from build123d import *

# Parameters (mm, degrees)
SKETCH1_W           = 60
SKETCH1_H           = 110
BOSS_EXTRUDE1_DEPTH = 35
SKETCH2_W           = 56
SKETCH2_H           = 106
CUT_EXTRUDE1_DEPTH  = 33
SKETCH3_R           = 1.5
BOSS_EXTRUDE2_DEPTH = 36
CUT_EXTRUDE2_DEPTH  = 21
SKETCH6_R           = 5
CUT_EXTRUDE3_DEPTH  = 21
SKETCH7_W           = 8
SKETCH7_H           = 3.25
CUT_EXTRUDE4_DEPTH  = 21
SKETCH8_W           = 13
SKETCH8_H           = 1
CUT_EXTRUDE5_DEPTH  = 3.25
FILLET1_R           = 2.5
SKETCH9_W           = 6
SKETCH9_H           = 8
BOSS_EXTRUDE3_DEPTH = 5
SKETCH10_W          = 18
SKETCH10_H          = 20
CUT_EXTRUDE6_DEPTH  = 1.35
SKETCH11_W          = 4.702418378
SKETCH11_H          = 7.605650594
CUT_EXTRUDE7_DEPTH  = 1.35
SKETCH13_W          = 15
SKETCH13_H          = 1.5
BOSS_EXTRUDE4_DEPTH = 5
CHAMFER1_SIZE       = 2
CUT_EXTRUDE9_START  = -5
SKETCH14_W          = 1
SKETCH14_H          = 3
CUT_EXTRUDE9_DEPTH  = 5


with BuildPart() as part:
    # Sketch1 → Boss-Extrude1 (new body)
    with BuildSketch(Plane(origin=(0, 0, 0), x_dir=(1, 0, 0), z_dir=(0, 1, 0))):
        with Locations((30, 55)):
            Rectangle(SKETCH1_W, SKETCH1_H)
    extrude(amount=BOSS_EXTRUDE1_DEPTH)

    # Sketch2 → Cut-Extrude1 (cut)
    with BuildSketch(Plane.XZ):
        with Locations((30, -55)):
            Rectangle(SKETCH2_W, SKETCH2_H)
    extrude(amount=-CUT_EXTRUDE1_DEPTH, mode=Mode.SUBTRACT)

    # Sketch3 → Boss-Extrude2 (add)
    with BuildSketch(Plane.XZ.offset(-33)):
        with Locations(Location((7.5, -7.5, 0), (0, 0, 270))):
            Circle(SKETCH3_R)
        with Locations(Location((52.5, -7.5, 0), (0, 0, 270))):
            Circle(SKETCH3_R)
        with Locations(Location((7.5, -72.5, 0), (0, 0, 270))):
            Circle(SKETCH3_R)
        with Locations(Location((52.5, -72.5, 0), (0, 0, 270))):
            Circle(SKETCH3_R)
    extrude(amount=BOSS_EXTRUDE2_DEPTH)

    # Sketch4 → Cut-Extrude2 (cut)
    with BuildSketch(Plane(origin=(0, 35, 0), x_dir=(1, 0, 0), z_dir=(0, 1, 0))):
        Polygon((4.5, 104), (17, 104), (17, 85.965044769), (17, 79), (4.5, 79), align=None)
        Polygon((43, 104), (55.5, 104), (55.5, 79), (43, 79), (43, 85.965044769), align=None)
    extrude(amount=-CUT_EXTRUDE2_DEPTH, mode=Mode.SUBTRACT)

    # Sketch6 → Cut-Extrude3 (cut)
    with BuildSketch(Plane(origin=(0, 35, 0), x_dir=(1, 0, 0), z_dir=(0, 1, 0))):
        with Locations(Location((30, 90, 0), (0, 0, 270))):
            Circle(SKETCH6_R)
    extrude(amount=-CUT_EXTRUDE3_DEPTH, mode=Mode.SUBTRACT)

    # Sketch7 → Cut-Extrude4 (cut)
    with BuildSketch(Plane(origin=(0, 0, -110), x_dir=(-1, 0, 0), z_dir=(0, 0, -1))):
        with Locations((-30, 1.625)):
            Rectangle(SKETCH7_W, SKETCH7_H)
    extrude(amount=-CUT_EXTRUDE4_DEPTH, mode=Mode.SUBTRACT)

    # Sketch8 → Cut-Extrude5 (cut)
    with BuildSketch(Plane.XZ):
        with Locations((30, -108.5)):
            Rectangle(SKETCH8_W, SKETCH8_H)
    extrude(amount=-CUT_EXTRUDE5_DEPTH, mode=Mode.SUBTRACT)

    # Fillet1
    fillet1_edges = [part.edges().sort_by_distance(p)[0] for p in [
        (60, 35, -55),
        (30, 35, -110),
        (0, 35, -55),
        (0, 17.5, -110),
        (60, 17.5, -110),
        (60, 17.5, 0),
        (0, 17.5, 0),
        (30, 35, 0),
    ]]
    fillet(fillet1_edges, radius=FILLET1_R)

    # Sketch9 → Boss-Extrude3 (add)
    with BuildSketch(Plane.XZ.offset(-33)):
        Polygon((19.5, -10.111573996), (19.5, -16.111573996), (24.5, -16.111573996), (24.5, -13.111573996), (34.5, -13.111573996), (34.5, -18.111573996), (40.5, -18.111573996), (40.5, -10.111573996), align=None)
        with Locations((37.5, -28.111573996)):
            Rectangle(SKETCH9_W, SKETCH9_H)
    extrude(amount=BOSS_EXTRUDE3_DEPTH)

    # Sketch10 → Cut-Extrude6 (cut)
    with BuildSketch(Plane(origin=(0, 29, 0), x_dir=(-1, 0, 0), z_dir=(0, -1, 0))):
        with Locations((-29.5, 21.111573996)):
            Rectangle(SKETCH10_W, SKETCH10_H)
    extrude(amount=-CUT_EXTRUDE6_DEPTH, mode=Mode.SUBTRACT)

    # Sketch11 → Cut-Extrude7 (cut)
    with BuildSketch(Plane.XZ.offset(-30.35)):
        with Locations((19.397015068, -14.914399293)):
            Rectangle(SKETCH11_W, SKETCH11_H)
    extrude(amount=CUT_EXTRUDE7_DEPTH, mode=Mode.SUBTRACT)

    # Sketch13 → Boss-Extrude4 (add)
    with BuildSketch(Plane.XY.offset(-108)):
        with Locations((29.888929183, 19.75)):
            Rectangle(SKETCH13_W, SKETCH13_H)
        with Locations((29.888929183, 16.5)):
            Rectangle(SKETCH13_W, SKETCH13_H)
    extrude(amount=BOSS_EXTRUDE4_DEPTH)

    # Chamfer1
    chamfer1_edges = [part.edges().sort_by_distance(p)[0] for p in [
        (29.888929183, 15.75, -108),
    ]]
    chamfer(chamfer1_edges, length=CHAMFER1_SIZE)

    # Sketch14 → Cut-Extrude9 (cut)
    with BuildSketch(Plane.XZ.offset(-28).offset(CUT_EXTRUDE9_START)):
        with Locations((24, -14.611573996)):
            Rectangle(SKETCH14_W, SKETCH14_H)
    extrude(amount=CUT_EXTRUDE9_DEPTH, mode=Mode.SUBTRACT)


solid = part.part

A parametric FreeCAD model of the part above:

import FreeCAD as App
import Part
import Sketcher


def edges_at(feature, points):
    """Names of the edges that pass closest to the given points."""
    edges = feature.Shape.Edges
    near = lambda p: min(range(len(edges)), key=lambda i: edges[i].distToShape(Part.Vertex(*p))[0])
    return sorted({f"Edge{near(p) + 1}" for p in points})


def add_polygon(sketch, points):
    """Adds a closed chain of lines whose ends are joined by coincident constraints."""
    first, n = sketch.GeometryCount, len(points)
    for a, b in zip(points, points[1:] + points[:1]):
        sketch.addGeometry(Part.LineSegment(App.Vector(*a, 0), App.Vector(*b, 0)), False)
    for i in range(n):
        sketch.addConstraint(Sketcher.Constraint("Coincident", first + i, 2, first + (i + 1) % n, 1))

doc = App.newDocument("Part")
params = doc.addObject("Spreadsheet::Sheet", "Params")
for row, (alias, value) in enumerate([
    ("sketch1_width", "60 mm"),
    ("sketch1_height", "110 mm"),
    ("pad1_length", "35 mm"),
    ("sketch2_width", "56 mm"),
    ("sketch2_height", "106 mm"),
    ("pocket1_length", "33 mm"),
    ("sketch3_diameter", "3 mm"),
    ("pad2_length", "36 mm"),
    ("sketch4_height", "25 mm"),
    ("sketch4_width", "12.5 mm"),
    ("pocket2_length", "21 mm"),
    ("sketch5_diameter", "10 mm"),
    ("pocket3_length", "21 mm"),
    ("sketch6_width", "8 mm"),
    ("sketch6_height", "3.25 mm"),
    ("pocket4_length", "21 mm"),
    ("sketch7_width", "13 mm"),
    ("sketch7_height", "1 mm"),
    ("pocket5_length", "3.25 mm"),
    ("fillet_radius", "2.5 mm"),
    ("sketch8_width", "5 mm"),
    ("sketch8_width2", "10 mm"),
    ("sketch8_width3", "6 mm"),
    ("sketch8_height", "3 mm"),
    ("pad3_length", "5 mm"),
    ("sketch9_width", "18 mm"),
    ("sketch9_height", "20 mm"),
    ("pocket6_length", "1.35 mm"),
    ("pocket7_length", "1.35 mm"),
    ("sketch11_width", "15 mm"),
    ("sketch11_height", "1.5 mm"),
    ("pad4_length", "5 mm"),
    ("chamfer_size", "2 mm"),
    ("sketch12_width", "1 mm"),
    ("sketch12_height", "3 mm"),
    ("pocket8_length", "5 mm"),
], start=1):
    params.set(f"A{row}", alias)
    params.set(f"B{row}", "=" + value)
    params.setAlias(f"B{row}", alias)

body = doc.addObject("PartDesign::Body", "Body")

sketch1 = body.newObject("Sketcher::SketchObject", "Sketch")
sketch1.AttachmentSupport = (doc.getObject("XZ_Plane"), [""])
sketch1.MapMode = "FlatFace"
add_polygon(sketch1, [(0, -110), (0, 0), (60, 0), (60, -110)])
sketch1.addConstraint([
    Sketcher.Constraint("Vertical", 0),
    Sketcher.Constraint("Horizontal", 1),
    Sketcher.Constraint("Vertical", 2),
    Sketcher.Constraint("Horizontal", 3),
    Sketcher.Constraint("Coincident", 0, 2, -1, 1),
    Sketcher.Constraint("DistanceX", 1, 1, 1, 2, 60.0),
    Sketcher.Constraint("DistanceY", 0, 1, 0, 2, 110.0),
])
sketch1.setExpression("Constraints[9]", "Params.sketch1_width")
sketch1.setExpression("Constraints[10]", "Params.sketch1_height")
pad1 = body.newObject("PartDesign::Pad", "Pad")
pad1.Profile = sketch1
pad1.setExpression("Length", "Params.pad1_length")
pad1.Reversed = True

sketch2 = body.newObject("Sketcher::SketchObject", "Sketch001")
sketch2.AttachmentSupport = (doc.getObject("XZ_Plane"), [""])
sketch2.MapMode = "FlatFace"
add_polygon(sketch2, [(2, -2), (2, -108), (58, -108), (58, -2)])
sketch2.addConstraint([
    Sketcher.Constraint("Vertical", 0),
    Sketcher.Constraint("Horizontal", 1),
    Sketcher.Constraint("Vertical", 2),
    Sketcher.Constraint("Horizontal", 3),
    Sketcher.Constraint("DistanceX", 1, 1, 1, 2, 56.0),
    Sketcher.Constraint("DistanceY", 0, 2, 0, 1, 106.0),
    Sketcher.Constraint("DistanceX", -1, 1, 0, 2, 2.0),
    Sketcher.Constraint("DistanceY", 0, 2, -1, 1, 108.0),
])
sketch2.setExpression("Constraints[8]", "Params.sketch2_width")
sketch2.setExpression("Constraints[9]", "Params.sketch2_height")
pocket1 = body.newObject("PartDesign::Pocket", "Pocket")
pocket1.Profile = sketch2
pocket1.setExpression("Length", "Params.pocket1_length")

sketch3 = body.newObject("Sketcher::SketchObject", "Sketch002")
sketch3.AttachmentSupport = (doc.getObject("XZ_Plane"), [""])
sketch3.MapMode = "FlatFace"
sketch3.AttachmentOffset = App.Placement(App.Vector(0, 0, -33), App.Rotation())
sketch3.addGeometry([
    Part.Circle(App.Vector(7.5, -7.5, 0), App.Vector(0, 0, 1), 1.5),
    Part.Circle(App.Vector(52.5, -7.5, 0), App.Vector(0, 0, 1), 1.5),
    Part.Circle(App.Vector(7.5, -72.5, 0), App.Vector(0, 0, 1), 1.5),
    Part.Circle(App.Vector(52.5, -72.5, 0), App.Vector(0, 0, 1), 1.5),
], False)
sketch3.addConstraint([
    Sketcher.Constraint("Equal", 0, 1),
    Sketcher.Constraint("Equal", 1, 2),
    Sketcher.Constraint("Equal", 2, 3),
    Sketcher.Constraint("Horizontal", 0, 3, 1, 3),
    Sketcher.Constraint("Horizontal", 2, 3, 3, 3),
    Sketcher.Constraint("Vertical", 0, 3, 2, 3),
    Sketcher.Constraint("Vertical", 1, 3, 3, 3),
    Sketcher.Constraint("Diameter", 0, 3.0),
    Sketcher.Constraint("DistanceX", 0, 3, 1, 3, 45.0),
    Sketcher.Constraint("DistanceY", 2, 3, 0, 3, 65.0),
    Sketcher.Constraint("DistanceX", -1, 1, 0, 3, 7.5),
    Sketcher.Constraint("DistanceY", 0, 3, -1, 1, 7.5),
])
sketch3.setExpression("Constraints[7]", "Params.sketch3_diameter")
pad2 = body.newObject("PartDesign::Pad", "Pad001")
pad2.Profile = sketch3
pad2.setExpression("Length", "Params.pad2_length")

sketch4 = body.newObject("Sketcher::SketchObject", "Sketch003")
sketch4.AttachmentSupport = (doc.getObject("XZ_Plane"), [""])
sketch4.MapMode = "FlatFace"
sketch4.AttachmentOffset = App.Placement(App.Vector(0, 0, -35), App.Rotation())
add_polygon(sketch4, [(17, -104), (4, -104), (4, -79), (17, -79)])
add_polygon(sketch4, [(56, -104), (43, -104), (43, -79), (56, -79)])
sketch4.addConstraint([
    Sketcher.Constraint("Horizontal", 0),
    Sketcher.Constraint("Vertical", 1),
    Sketcher.Constraint("Horizontal", 2),
    Sketcher.Constraint("Vertical", 3),
    Sketcher.Constraint("Horizontal", 4),
    Sketcher.Constraint("Vertical", 5),
    Sketcher.Constraint("Horizontal", 6),
    Sketcher.Constraint("Vertical", 7),
    Sketcher.Constraint("Horizontal", 3, 2, 4, 2),
    Sketcher.Constraint("Horizontal", 2, 2, 5, 2),
    Sketcher.Constraint("Equal", 2, 4),
    Sketcher.Constraint("DistanceY", 1, 1, 1, 2, 25.0),
    Sketcher.Constraint("DistanceX", 0, 2, 0, 1, 12.5),
    Sketcher.Constraint("DistanceY", 0, 2, -1, 1, 104.0),
    Sketcher.Constraint("DistanceX", -1, 1, 2, 2, 17.0),
    Sketcher.Constraint("DistanceX", -1, 1, 4, 2, 43.0),
])
sketch4.setExpression("Constraints[19]", "Params.sketch4_height")
sketch4.setExpression("Constraints[20]", "Params.sketch4_width")
pocket2 = body.newObject("PartDesign::Pocket", "Pocket001")
pocket2.Profile = sketch4
pocket2.setExpression("Length", "Params.pocket2_length")
pocket2.Reversed = True

sketch5 = body.newObject("Sketcher::SketchObject", "Sketch004")
sketch5.AttachmentSupport = (doc.getObject("XZ_Plane"), [""])
sketch5.MapMode = "FlatFace"
sketch5.AttachmentOffset = App.Placement(App.Vector(0, 0, -35), App.Rotation())
sketch5.addGeometry(Part.Circle(App.Vector(30, -90, 0), App.Vector(0, 0, 1), 5), False)
sketch5.addConstraint([
    Sketcher.Constraint("Diameter", 0, 10.0),
    Sketcher.Constraint("DistanceX", -1, 1, 0, 3, 30.0),
    Sketcher.Constraint("DistanceY", 0, 3, -1, 1, 90.0),
])
sketch5.setExpression("Constraints[0]", "Params.sketch5_diameter")
pocket3 = body.newObject("PartDesign::Pocket", "Pocket002")
pocket3.Profile = sketch5
pocket3.setExpression("Length", "Params.pocket3_length")
pocket3.Reversed = True

sketch6 = body.newObject("Sketcher::SketchObject", "Sketch005")
sketch6.AttachmentSupport = (doc.getObject("XY_Plane"), [""])
sketch6.MapMode = "FlatFace"
sketch6.AttachmentOffset = App.Placement(App.Vector(0, 0, -110), App.Rotation())
add_polygon(sketch6, [(34, 3.2), (34, 0), (26, 0), (26, 3.2)])
sketch6.addConstraint([
    Sketcher.Constraint("Vertical", 0),
    Sketcher.Constraint("Horizontal", 1),
    Sketcher.Constraint("Vertical", 2),
    Sketcher.Constraint("Horizontal", 3),
    Sketcher.Constraint("PointOnObject", 0, 2, -1),
    Sketcher.Constraint("DistanceX", 1, 2, 1, 1, 8.0),
    Sketcher.Constraint("DistanceX", -1, 1, 0, 2, 34.0),
    Sketcher.Constraint("DistanceY", 0, 2, 0, 1, 3.25),
])
sketch6.setExpression("Constraints[9]", "Params.sketch6_width")
sketch6.setExpression("Constraints[11]", "Params.sketch6_height")
pocket4 = body.newObject("PartDesign::Pocket", "Pocket003")
pocket4.Profile = sketch6
pocket4.setExpression("Length", "Params.pocket4_length")
pocket4.Reversed = True

sketch7 = body.newObject("Sketcher::SketchObject", "Sketch006")
sketch7.AttachmentSupport = (doc.getObject("XZ_Plane"), [""])
sketch7.MapMode = "FlatFace"
add_polygon(sketch7, [(23.5, -108), (23.5, -109), (36.5, -109), (36.5, -108)])
sketch7.addConstraint([
    Sketcher.Constraint("Vertical", 0),
    Sketcher.Constraint("Horizontal", 1),
    Sketcher.Constraint("Vertical", 2),
    Sketcher.Constraint("Horizontal", 3),
    Sketcher.Constraint("DistanceX", 1, 1, 1, 2, 13.0),
    Sketcher.Constraint("DistanceY", 0, 2, 0, 1, 1.0),
    Sketcher.Constraint("DistanceY", 0, 2, -1, 1, 109.0),
    Sketcher.Constraint("DistanceX", -1, 1, 0, 2, 23.5),
])
sketch7.setExpression("Constraints[8]", "Params.sketch7_width")
sketch7.setExpression("Constraints[9]", "Params.sketch7_height")
pocket5 = body.newObject("PartDesign::Pocket", "Pocket004")
pocket5.Profile = sketch7
pocket5.setExpression("Length", "Params.pocket5_length")
doc.recompute()

fillet = body.newObject("PartDesign::Fillet", "Fillet")
fillet.Base = (pocket5, edges_at(pocket5, [
    (60, 35, -55),
    (30, 35, -110),
    (0, 35, -55),
    (0, 17.5, -110),
    (60, 17.5, -110),
    (60, 17.5, 0),
    (0, 17.5, 0),
    (30, 35, 0),
]))
fillet.setExpression("Radius", "Params.fillet_radius")

sketch8 = body.newObject("Sketcher::SketchObject", "Sketch007")
sketch8.AttachmentSupport = (doc.getObject("XZ_Plane"), [""])
sketch8.MapMode = "FlatFace"
sketch8.AttachmentOffset = App.Placement(App.Vector(0, 0, -33), App.Rotation())
add_polygon(sketch8, [(19.5, -10.1), (19.5, -16.1), (24.5, -16.1), (24.5, -13.1), (34.5, -13.1), (34.5, -18.1), (40.5, -18.1), (40.5, -10.1)])
add_polygon(sketch8, [(34.5, -24.1), (34.5, -32.1), (40.5, -32.1), (40.5, -24.1)])
sketch8.addConstraint([
    Sketcher.Constraint("Vertical", 0),
    Sketcher.Constraint("Horizontal", 1),
    Sketcher.Constraint("Vertical", 2),
    Sketcher.Constraint("Horizontal", 3),
    Sketcher.Constraint("Vertical", 4),
    Sketcher.Constraint("Horizontal", 5),
    Sketcher.Constraint("Vertical", 6),
    Sketcher.Constraint("Horizontal", 7),
    Sketcher.Constraint("Vertical", 8),
    Sketcher.Constraint("Horizontal", 9),
    Sketcher.Constraint("Vertical", 10),
    Sketcher.Constraint("Horizontal", 11),
    Sketcher.Constraint("Vertical", 4, 2, 8, 2),
    Sketcher.Constraint("Vertical", 6, 2, 9, 2),
    Sketcher.Constraint("Equal", 11, 0),
    Sketcher.Constraint("Equal", 1, 4),
    Sketcher.Constraint("Equal", 6, 8),
    Sketcher.Constraint("DistanceX", 1, 1, 1, 2, 5.0),
    Sketcher.Constraint("DistanceX", 3, 1, 3, 2, 10.0),
    Sketcher.Constraint("DistanceX", 5, 1, 5, 2, 6.0),
    Sketcher.Constraint("DistanceY", 2, 1, 2, 2, 3.0),
    Sketcher.Constraint("DistanceY", 8, 2, 4, 2, 14.0),
    Sketcher.Constraint("DistanceX", -1, 1, 0, 2, 19.5),
    Sketcher.Constraint("DistanceY", 0, 2, -1, 1, 16.111574),
])
sketch8.setExpression("Constraints[29]", "Params.sketch8_width")
sketch8.setExpression("Constraints[30]", "Params.sketch8_width2")
sketch8.setExpression("Constraints[31]", "Params.sketch8_width3")
sketch8.setExpression("Constraints[32]", "Params.sketch8_height")
pad3 = body.newObject("PartDesign::Pad", "Pad002")
pad3.Profile = sketch8
pad3.setExpression("Length", "Params.pad3_length")

sketch9 = body.newObject("Sketcher::SketchObject", "Sketch008")
sketch9.AttachmentSupport = (doc.getObject("XZ_Plane"), [""])
sketch9.MapMode = "FlatFace"
sketch9.AttachmentOffset = App.Placement(App.Vector(0, 0, -29), App.Rotation())
add_polygon(sketch9, [(38, -31), (38, -11), (20, -11), (20, -31)])
sketch9.addConstraint([
    Sketcher.Constraint("Vertical", 0),
    Sketcher.Constraint("Horizontal", 1),
    Sketcher.Constraint("Vertical", 2),
    Sketcher.Constraint("Horizontal", 3),
    Sketcher.Constraint("DistanceX", 1, 2, 1, 1, 18.0),
    Sketcher.Constraint("DistanceY", 0, 1, 0, 2, 20.0),
    Sketcher.Constraint("DistanceX", -1, 1, 0, 2, 38.5),
    Sketcher.Constraint("DistanceY", 0, 2, -1, 1, 11.111574),
])
sketch9.setExpression("Constraints[8]", "Params.sketch9_width")
sketch9.setExpression("Constraints[9]", "Params.sketch9_height")
pocket6 = body.newObject("PartDesign::Pocket", "Pocket005")
pocket6.Profile = sketch9
pocket6.setExpression("Length", "Params.pocket6_length")

sketch10 = body.newObject("Sketcher::SketchObject", "Sketch009")
sketch10.AttachmentSupport = (doc.getObject("XZ_Plane"), [""])
sketch10.MapMode = "FlatFace"
sketch10.AttachmentOffset = App.Placement(App.Vector(0, 0, -30.35), App.Rotation())
add_polygon(sketch10, [(17, -11.1), (17, -18.7), (21.7, -18.7), (21.7, -11.1)])
sketch10.addConstraint([
    Sketcher.Constraint("Vertical", 0),
    Sketcher.Constraint("Horizontal", 1),
    Sketcher.Constraint("Vertical", 2),
    Sketcher.Constraint("Horizontal", 3),
    Sketcher.Constraint("DistanceX", 1, 1, 1, 2, 4.702418),
    Sketcher.Constraint("DistanceY", 0, 2, 0, 1, 7.605651),
    Sketcher.Constraint("DistanceX", -1, 1, 0, 2, 17.045806),
    Sketcher.Constraint("DistanceY", 0, 2, -1, 1, 18.717225),
])
pocket7 = body.newObject("PartDesign::Pocket", "Pocket006")
pocket7.Profile = sketch10
pocket7.setExpression("Length", "Params.pocket7_length")
pocket7.Reversed = True

sketch11 = body.newObject("Sketcher::SketchObject", "Sketch010")
sketch11.AttachmentSupport = (doc.getObject("XY_Plane"), [""])
sketch11.MapMode = "FlatFace"
sketch11.AttachmentOffset = App.Placement(App.Vector(0, 0, -108), App.Rotation())
add_polygon(sketch11, [(22.4, 20.5), (22.4, 19), (37.4, 19), (37.4, 20.5)])
add_polygon(sketch11, [(22.4, 17.2), (22.4, 15.8), (37.4, 15.8), (37.4, 17.2)])
sketch11.addConstraint([
    Sketcher.Constraint("Vertical", 0),
    Sketcher.Constraint("Horizontal", 1),
    Sketcher.Constraint("Vertical", 2),
    Sketcher.Constraint("Horizontal", 3),
    Sketcher.Constraint("Vertical", 4),
    Sketcher.Constraint("Horizontal", 5),
    Sketcher.Constraint("Vertical", 6),
    Sketcher.Constraint("Horizontal", 7),
    Sketcher.Constraint("Vertical", 3, 2, 4, 2),
    Sketcher.Constraint("Vertical", 2, 2, 5, 2),
    Sketcher.Constraint("Equal", 2, 4),
    Sketcher.Constraint("DistanceX", 1, 1, 1, 2, 15.0),
    Sketcher.Constraint("DistanceY", 0, 2, 0, 1, 1.5),
    Sketcher.Constraint("DistanceY", -1, 1, 0, 2, 19.0),
    Sketcher.Constraint("DistanceY", -1, 1, 4, 2, 15.75),
    Sketcher.Constraint("DistanceX", -1, 1, 0, 2, 22.388929),
])
sketch11.setExpression("Constraints[19]", "Params.sketch11_width")
sketch11.setExpression("Constraints[20]", "Params.sketch11_height")
pad4 = body.newObject("PartDesign::Pad", "Pad003")
pad4.Profile = sketch11
pad4.setExpression("Length", "Params.pad4_length")
doc.recompute()

chamfer = body.newObject("PartDesign::Chamfer", "Chamfer")
chamfer.Base = (pad4, edges_at(pad4, [(29.889, 15.75, -108)]))
chamfer.setExpression("Size", "Params.chamfer_size")

sketch12 = body.newObject("Sketcher::SketchObject", "Sketch011")
sketch12.AttachmentSupport = (doc.getObject("XZ_Plane"), [""])
sketch12.MapMode = "FlatFace"
sketch12.AttachmentOffset = App.Placement(App.Vector(0, 0, -33), App.Rotation())
add_polygon(sketch12, [(23.5, -13.1), (23.5, -16.1), (24.5, -16.1), (24.5, -13.1)])
sketch12.addConstraint([
    Sketcher.Constraint("Vertical", 0),
    Sketcher.Constraint("Horizontal", 1),
    Sketcher.Constraint("Vertical", 2),
    Sketcher.Constraint("Horizontal", 3),
    Sketcher.Constraint("DistanceX", 1, 1, 1, 2, 1.0),
    Sketcher.Constraint("DistanceY", 0, 2, 0, 1, 3.0),
    Sketcher.Constraint("DistanceX", -1, 1, 0, 2, 23.5),
    Sketcher.Constraint("DistanceY", 0, 2, -1, 1, 16.111574),
])
sketch12.setExpression("Constraints[8]", "Params.sketch12_width")
sketch12.setExpression("Constraints[9]", "Params.sketch12_height")
pocket8 = body.newObject("PartDesign::Pocket", "Pocket007")
pocket8.Profile = sketch12
pocket8.setExpression("Length", "Params.pocket8_length")
pocket8.Reversed = True

doc.recompute()
